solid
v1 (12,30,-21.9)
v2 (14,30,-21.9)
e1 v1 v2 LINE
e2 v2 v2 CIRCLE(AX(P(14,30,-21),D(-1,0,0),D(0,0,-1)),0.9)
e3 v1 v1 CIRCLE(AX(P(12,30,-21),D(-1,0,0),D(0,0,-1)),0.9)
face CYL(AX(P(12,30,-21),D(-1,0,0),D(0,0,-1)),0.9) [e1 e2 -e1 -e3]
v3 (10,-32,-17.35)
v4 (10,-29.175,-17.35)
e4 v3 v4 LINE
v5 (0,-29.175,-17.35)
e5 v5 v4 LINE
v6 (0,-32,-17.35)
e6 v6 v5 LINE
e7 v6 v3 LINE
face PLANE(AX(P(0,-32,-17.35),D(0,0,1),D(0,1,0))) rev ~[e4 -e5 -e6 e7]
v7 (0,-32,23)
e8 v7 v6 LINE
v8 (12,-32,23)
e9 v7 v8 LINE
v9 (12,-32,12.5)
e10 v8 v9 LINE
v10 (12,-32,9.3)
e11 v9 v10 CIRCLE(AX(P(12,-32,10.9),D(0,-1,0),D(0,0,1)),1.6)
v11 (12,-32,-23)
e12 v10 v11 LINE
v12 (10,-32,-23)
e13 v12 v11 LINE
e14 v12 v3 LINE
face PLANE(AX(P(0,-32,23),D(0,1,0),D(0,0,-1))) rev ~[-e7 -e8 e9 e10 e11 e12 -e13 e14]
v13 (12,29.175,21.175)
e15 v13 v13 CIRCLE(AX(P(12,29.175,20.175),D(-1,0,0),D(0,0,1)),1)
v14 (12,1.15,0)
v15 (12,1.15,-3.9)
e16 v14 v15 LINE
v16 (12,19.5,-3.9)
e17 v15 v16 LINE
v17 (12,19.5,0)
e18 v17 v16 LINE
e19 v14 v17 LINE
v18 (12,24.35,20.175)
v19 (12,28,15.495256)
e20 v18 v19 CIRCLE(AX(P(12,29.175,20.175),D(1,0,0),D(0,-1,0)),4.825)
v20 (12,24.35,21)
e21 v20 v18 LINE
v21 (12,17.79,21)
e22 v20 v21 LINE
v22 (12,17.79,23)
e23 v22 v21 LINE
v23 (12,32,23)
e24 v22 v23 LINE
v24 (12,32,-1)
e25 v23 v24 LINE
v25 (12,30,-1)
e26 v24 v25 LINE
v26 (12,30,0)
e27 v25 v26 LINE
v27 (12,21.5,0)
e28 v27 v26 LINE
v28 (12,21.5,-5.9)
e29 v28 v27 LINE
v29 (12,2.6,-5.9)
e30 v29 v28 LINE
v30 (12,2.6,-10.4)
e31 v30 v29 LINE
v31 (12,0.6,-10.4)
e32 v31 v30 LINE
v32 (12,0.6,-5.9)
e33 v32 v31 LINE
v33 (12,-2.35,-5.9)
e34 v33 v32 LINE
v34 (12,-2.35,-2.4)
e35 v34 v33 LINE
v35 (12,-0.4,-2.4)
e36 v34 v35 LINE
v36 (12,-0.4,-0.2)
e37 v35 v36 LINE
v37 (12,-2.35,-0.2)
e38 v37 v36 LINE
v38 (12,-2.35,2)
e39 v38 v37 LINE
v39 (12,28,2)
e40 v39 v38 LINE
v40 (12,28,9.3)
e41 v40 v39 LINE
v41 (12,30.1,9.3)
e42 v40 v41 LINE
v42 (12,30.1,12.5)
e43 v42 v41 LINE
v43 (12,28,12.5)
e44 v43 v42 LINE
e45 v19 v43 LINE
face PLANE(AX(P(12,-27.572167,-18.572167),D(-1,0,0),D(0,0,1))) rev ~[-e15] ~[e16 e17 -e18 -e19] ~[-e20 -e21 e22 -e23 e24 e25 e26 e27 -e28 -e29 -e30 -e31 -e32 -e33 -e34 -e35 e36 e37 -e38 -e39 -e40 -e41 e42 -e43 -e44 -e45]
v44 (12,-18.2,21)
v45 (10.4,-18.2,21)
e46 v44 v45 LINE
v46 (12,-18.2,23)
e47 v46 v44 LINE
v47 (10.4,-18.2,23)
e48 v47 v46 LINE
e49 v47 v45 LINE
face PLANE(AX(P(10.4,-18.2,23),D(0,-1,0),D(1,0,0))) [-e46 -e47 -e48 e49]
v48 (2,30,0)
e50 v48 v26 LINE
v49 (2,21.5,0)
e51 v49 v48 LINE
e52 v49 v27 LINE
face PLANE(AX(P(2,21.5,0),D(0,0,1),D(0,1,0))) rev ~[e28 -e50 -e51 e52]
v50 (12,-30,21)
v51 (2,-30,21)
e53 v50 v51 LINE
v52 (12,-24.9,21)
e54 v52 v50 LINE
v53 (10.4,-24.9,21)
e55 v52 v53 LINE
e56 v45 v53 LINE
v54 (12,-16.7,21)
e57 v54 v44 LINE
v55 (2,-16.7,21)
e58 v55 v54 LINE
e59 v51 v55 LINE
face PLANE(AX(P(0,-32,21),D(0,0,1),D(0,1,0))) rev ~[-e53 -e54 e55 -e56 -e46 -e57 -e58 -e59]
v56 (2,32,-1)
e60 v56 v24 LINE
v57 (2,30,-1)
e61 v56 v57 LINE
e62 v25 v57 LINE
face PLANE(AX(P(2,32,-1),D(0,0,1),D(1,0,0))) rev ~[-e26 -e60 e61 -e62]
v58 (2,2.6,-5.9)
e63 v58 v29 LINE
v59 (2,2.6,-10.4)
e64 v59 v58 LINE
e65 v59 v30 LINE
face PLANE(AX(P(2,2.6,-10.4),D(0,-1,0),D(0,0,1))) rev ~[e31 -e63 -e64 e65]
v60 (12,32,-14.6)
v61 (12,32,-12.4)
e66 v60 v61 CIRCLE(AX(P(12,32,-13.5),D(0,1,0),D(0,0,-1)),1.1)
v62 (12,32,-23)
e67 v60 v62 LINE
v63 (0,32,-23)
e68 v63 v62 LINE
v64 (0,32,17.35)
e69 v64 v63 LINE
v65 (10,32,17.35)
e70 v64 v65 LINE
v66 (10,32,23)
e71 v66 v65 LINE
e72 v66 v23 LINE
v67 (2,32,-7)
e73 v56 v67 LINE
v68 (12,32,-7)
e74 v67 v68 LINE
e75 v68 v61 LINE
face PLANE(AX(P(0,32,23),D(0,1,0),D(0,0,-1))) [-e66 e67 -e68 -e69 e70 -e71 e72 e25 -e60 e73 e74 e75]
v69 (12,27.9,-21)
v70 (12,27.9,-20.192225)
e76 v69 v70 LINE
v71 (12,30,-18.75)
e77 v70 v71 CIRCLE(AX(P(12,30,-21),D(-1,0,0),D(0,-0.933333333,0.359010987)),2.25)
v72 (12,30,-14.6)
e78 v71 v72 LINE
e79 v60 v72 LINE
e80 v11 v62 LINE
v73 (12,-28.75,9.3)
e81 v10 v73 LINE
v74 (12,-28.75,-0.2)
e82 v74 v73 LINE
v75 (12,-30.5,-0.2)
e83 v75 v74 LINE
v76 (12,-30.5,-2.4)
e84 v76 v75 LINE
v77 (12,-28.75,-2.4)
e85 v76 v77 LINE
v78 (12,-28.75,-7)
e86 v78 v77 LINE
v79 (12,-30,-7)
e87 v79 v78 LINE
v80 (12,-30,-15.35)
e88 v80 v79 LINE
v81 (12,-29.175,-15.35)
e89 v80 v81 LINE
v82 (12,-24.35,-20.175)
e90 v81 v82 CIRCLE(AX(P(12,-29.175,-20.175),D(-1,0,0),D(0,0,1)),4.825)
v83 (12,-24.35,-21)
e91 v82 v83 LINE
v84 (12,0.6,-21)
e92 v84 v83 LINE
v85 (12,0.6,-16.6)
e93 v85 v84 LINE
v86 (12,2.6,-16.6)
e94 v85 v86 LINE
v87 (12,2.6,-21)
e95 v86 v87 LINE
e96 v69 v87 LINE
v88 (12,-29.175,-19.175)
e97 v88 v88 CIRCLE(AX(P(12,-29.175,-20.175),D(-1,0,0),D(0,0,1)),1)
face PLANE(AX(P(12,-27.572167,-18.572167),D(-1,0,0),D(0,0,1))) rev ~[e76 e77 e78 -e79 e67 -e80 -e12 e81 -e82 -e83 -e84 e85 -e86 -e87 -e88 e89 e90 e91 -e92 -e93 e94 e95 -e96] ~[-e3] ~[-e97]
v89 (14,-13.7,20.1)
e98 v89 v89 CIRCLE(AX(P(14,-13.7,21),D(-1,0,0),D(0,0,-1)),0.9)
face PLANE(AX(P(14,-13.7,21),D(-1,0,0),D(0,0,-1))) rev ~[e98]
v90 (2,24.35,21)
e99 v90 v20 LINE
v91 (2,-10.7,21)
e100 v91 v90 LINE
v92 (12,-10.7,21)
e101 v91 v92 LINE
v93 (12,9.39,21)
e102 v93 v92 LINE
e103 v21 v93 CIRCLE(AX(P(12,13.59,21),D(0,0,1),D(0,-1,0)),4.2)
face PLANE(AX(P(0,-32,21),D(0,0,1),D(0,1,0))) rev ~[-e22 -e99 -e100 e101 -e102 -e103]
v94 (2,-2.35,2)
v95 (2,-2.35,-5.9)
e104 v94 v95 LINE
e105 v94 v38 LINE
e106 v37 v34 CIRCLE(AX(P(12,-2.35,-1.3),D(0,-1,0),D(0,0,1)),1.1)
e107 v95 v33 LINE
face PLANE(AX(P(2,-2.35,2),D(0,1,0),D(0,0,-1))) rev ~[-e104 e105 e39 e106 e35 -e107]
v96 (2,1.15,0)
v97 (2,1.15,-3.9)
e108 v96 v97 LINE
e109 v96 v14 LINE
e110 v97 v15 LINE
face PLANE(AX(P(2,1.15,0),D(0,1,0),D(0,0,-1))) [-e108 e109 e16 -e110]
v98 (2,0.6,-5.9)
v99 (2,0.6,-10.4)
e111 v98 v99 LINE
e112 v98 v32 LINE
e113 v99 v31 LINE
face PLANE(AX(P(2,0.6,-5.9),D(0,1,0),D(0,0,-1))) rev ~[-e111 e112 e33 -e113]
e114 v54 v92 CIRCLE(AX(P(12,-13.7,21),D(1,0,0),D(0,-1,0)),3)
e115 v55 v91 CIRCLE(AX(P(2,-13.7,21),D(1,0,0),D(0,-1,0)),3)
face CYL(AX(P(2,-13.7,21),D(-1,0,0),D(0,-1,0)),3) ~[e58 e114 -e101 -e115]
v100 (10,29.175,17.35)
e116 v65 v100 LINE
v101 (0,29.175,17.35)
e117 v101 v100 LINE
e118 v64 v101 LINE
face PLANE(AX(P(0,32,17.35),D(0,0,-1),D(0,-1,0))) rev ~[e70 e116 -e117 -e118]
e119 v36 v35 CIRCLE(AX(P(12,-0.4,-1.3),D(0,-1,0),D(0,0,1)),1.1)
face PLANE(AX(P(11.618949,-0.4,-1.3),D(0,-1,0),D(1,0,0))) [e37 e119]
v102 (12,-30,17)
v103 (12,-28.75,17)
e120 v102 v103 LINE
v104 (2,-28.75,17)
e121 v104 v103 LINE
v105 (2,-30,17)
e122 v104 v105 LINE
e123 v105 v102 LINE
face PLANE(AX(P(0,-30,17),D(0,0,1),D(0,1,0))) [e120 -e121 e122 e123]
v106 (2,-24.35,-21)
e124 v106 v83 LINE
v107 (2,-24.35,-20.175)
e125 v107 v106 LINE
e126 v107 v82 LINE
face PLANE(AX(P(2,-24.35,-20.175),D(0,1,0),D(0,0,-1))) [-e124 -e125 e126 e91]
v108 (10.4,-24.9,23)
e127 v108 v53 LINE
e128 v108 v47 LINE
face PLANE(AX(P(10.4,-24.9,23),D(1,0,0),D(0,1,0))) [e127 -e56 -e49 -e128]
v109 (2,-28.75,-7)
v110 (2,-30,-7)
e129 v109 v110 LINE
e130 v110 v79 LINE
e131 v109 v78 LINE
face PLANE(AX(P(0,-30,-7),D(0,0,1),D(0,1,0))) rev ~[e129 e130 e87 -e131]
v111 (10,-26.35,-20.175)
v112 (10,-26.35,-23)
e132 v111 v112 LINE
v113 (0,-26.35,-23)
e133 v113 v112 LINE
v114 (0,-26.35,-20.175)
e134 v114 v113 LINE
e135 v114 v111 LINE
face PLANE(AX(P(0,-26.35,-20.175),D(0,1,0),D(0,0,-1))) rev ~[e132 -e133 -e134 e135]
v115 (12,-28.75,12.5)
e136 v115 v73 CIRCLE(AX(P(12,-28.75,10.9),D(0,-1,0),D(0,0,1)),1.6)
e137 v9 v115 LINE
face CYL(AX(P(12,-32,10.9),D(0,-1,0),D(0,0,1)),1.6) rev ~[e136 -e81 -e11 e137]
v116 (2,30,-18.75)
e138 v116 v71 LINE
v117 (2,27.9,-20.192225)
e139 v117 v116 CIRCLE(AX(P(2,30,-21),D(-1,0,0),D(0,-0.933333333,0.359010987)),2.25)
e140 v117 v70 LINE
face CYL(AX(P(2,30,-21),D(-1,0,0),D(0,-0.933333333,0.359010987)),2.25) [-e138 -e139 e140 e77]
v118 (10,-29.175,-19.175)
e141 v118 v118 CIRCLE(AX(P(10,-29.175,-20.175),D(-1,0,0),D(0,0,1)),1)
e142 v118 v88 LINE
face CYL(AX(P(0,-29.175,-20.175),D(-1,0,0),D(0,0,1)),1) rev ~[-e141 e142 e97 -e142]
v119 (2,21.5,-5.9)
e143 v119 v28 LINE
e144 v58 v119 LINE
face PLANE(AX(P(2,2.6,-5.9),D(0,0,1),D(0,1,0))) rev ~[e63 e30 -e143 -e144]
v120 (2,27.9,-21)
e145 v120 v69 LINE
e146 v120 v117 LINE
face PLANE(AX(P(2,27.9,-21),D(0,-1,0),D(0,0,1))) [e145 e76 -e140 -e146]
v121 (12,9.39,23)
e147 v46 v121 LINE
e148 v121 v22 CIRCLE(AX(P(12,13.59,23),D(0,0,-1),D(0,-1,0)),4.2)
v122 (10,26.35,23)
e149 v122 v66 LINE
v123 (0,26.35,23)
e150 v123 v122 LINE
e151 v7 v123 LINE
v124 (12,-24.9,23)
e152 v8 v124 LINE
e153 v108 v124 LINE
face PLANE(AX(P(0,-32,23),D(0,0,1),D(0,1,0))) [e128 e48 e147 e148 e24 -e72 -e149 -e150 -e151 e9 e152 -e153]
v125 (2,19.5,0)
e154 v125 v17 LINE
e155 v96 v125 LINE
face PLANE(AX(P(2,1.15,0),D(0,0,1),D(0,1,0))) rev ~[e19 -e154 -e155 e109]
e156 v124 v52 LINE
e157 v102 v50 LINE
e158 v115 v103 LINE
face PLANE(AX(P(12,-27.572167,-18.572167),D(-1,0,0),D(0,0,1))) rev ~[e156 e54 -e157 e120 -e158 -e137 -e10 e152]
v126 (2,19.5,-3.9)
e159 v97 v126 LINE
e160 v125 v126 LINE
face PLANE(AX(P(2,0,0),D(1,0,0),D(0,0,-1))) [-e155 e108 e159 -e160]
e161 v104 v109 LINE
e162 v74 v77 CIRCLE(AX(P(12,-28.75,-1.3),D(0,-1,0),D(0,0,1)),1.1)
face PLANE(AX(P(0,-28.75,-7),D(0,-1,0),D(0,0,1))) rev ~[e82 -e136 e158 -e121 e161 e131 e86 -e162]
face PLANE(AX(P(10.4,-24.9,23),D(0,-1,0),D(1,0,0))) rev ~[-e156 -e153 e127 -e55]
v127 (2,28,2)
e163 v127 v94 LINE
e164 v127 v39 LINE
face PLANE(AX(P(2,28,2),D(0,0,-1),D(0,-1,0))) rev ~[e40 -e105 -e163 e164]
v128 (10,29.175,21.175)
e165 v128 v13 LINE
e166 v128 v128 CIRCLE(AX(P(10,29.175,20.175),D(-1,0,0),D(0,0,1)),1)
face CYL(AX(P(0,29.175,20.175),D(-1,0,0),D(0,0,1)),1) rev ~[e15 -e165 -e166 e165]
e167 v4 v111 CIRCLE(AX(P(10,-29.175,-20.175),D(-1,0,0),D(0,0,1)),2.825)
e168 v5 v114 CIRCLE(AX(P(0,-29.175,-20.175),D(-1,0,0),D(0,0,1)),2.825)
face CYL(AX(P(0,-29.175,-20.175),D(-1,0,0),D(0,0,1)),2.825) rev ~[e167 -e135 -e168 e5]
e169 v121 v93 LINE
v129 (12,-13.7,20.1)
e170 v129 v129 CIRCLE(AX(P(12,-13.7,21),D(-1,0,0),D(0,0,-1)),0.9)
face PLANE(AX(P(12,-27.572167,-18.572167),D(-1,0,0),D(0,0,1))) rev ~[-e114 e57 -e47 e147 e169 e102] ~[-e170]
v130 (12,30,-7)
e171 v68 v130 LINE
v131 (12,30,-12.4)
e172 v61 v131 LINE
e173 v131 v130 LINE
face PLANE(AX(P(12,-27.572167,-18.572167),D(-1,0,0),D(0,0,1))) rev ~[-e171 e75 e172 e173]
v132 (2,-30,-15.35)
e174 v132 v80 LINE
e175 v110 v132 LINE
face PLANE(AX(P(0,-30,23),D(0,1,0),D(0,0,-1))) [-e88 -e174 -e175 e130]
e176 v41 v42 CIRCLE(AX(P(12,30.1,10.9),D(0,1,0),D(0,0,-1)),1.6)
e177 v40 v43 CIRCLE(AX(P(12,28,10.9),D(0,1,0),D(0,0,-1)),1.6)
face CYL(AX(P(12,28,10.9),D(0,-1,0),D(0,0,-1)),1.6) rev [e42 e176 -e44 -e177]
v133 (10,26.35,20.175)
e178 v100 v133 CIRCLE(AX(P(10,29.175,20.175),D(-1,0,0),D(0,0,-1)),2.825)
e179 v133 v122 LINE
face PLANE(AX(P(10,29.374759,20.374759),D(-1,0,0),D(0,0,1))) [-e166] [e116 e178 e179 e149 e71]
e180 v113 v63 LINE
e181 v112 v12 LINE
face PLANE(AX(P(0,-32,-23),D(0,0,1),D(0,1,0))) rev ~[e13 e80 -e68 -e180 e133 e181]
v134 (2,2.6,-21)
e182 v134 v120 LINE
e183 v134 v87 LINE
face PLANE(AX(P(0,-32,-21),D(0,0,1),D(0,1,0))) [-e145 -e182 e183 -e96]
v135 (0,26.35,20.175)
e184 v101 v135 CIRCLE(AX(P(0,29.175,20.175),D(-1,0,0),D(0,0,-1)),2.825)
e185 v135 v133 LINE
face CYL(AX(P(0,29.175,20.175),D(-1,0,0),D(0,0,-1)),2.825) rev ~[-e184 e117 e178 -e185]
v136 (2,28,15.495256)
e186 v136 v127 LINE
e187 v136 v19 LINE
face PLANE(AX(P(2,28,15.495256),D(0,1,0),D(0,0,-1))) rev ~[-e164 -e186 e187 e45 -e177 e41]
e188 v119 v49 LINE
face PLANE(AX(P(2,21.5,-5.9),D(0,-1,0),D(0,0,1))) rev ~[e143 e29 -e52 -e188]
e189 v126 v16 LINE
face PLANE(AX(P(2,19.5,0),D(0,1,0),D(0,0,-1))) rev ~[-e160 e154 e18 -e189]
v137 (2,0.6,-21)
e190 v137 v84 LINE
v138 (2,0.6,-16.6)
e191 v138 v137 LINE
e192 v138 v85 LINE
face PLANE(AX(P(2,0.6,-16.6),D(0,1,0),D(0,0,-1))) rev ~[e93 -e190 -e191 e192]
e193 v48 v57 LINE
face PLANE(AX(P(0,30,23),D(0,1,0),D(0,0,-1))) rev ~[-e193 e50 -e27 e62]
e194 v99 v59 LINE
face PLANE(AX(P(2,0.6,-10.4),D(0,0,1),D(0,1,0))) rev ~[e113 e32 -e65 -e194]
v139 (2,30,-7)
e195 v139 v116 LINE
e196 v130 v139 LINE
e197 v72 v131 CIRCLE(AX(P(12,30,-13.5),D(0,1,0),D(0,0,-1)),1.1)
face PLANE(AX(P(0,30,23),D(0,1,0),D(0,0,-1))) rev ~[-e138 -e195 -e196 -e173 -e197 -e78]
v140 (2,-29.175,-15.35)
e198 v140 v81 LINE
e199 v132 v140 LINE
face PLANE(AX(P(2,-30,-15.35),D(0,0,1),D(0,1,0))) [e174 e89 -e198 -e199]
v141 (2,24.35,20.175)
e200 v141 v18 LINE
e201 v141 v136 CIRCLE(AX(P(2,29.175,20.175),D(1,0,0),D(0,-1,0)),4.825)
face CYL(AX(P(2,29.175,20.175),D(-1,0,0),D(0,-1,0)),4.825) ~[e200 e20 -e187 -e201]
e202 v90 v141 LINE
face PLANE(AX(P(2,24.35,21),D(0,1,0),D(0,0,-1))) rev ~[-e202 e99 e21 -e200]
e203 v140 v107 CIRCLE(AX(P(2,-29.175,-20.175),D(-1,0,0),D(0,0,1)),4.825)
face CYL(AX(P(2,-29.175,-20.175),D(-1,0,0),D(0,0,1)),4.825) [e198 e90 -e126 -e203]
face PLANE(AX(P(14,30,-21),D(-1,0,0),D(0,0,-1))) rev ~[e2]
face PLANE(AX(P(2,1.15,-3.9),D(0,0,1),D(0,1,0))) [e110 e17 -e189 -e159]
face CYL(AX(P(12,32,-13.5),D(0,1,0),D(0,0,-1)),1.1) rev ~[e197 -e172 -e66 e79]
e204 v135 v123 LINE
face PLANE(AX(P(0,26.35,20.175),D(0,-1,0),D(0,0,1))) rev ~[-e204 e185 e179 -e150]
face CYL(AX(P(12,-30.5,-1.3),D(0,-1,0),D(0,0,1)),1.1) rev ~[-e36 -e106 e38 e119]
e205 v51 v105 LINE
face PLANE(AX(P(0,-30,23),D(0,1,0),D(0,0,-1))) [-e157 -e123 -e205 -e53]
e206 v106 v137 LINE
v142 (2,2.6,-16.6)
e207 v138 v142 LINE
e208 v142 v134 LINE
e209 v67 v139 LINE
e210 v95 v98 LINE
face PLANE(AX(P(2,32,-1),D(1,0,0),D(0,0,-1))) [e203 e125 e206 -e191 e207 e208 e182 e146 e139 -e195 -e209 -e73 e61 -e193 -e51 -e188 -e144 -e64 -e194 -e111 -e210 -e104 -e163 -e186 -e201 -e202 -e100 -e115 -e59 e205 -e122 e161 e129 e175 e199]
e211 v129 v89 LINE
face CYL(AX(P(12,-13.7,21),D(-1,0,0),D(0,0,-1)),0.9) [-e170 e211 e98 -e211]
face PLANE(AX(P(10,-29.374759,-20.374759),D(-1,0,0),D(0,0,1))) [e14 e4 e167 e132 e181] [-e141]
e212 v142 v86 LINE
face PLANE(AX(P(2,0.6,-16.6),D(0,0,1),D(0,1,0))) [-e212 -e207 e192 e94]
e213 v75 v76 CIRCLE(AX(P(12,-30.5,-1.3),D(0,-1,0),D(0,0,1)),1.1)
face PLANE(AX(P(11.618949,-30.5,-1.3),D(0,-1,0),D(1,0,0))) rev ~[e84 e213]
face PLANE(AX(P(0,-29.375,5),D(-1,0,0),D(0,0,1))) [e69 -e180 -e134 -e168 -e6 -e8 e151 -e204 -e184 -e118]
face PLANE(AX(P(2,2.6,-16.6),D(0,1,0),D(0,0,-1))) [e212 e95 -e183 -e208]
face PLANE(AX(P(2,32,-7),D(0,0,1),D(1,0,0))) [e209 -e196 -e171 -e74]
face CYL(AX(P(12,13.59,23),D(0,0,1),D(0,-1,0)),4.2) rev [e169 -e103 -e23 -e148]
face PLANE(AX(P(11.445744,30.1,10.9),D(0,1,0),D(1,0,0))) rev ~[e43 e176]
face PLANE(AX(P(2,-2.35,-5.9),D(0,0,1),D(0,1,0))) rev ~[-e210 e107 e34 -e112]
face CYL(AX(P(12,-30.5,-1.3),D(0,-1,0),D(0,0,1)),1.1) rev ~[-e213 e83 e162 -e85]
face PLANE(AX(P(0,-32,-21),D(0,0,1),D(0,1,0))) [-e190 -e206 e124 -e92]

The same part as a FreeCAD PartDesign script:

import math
import FreeCAD as App
import Part
import Sketcher


def faces_at(feature, points):
    """Names of the faces that lie closest to the given points."""
    faces = feature.Shape.Faces
    near = lambda p: min(range(len(faces)), key=lambda i: faces[i].distToShape(Part.Vertex(*p))[0])
    return sorted({f"Face{near(p) + 1}" for p in points})

doc = App.newDocument("Part")
params = doc.addObject("Spreadsheet::Sheet", "Params")
for row, (alias, value) in enumerate([
    ("sketch1_width", "64 mm"),
    ("sketch1_height", "46 mm"),
    ("pad1_length", "12 mm"),
    ("thickness_wall", "2 mm"),
    ("sketch2_radius", "3 mm"),
    ("sketch2_width", "2 mm"),
    ("sketch2_height", "21 mm"),
    ("sketch2_radius2", "2.25 mm"),
    ("sketch2_width2", "18.9 mm"),
    ("pad2_length", "10 mm"),
    ("sketch3_diameter", "2 mm"),
    ("sketch3_width", "5.65 mm"),
    ("pocket1_length", "10 mm"),
    ("sketch4_diameter", "2 mm"),
    ("sketch5_diameter", "2 mm"),
    ("sketch6_diameter", "1.8 mm"),
    ("pad3_length", "2 mm"),
    ("sketch7_height", "24 mm"),
    ("sketch7_width", "1.25 mm"),
    ("pad4_length", "12 mm"),
    ("sketch8_radius", "1.6 mm"),
    ("sketch9_radius", "1.1 mm"),
    ("sketch10_radius", "1.6 mm"),
    ("pocket6_length", "2.1 mm"),
    ("sketch11_radius", "1.1 mm"),
    ("pocket7_length", "30.1 mm"),
    ("sketch12_radius", "4.2 mm"),
    ("sketch13_width", "10 mm"),
    ("sketch13_height", "6 mm"),
    ("sketch14_width", "1.6 mm"),
    ("sketch14_height", "6.7 mm"),
], start=1):
    params.set(f"A{row}", alias)
    params.set(f"B{row}", "=" + value)
    params.setAlias(f"B{row}", alias)

body = doc.addObject("PartDesign::Body", "Body")

# Sketch on YZ plane
sketch1 = body.newObject("Sketcher::SketchObject", "Sketch")
sketch1.AttachmentSupport = (doc.getObject("YZ_Plane"), [""])
sketch1.MapMode = "FlatFace"
sketch1.addGeometry([
    Part.LineSegment(App.Vector(32, 23, 0), App.Vector(-32, 23, 0)),
    Part.LineSegment(App.Vector(-32, 23, 0), App.Vector(-32, -23, 0)),
    Part.LineSegment(App.Vector(-32, -23, 0), App.Vector(32, -23, 0)),
    Part.LineSegment(App.Vector(32, -23, 0), App.Vector(32, 23, 0)),
], False)
sketch1.addConstraint([
    Sketcher.Constraint("Coincident", 0, 2, 1, 1),
    Sketcher.Constraint("Coincident", 1, 2, 2, 1),
    Sketcher.Constraint("Coincident", 2, 2, 3, 1),
    Sketcher.Constraint("Coincident", 3, 2, 0, 1),
    Sketcher.Constraint("Horizontal", 0),
    Sketcher.Constraint("Vertical", 1),
    Sketcher.Constraint("Horizontal", 2),
    Sketcher.Constraint("Vertical", 3),
    Sketcher.Constraint("Symmetric", 0, 2, 2, 2, -1, 1),
    Sketcher.Constraint("DistanceX", 0, 2, 0, 1, 64.0),
    Sketcher.Constraint("DistanceY", 1, 2, 1, 1, 46.0),
])
sketch1.setExpression("Constraints[9]", "Params.sketch1_width")
sketch1.setExpression("Constraints[10]", "Params.sketch1_height")
pad1 = body.newObject("PartDesign::Pad", "Pad")
pad1.Profile = sketch1
pad1.setExpression("Length", "Params.pad1_length")
doc.recompute()

thickness = body.newObject("PartDesign::Thickness", "Thickness")
thickness.Base = (pad1, faces_at(pad1, [(12, 0, 0)]))
thickness.setExpression("Value", "Params.thickness_wall")
thickness.Reversed = True
thickness.Join = "Intersection"

# Sketch on YZ plane
sketch2 = body.newObject("Sketcher::SketchObject", "Sketch001")
sketch2.AttachmentSupport = (doc.getObject("YZ_Plane"), [""])
sketch2.MapMode = "FlatFace"
sketch2.AttachmentOffset = App.Placement(App.Vector(0, 0, 2), App.Rotation())
sketch2.addGeometry([
    Part.LineSegment(App.Vector(-24.4, -21, 0), App.Vector(-24.4, -20.2, 0)),  # 0
    Part.ArcOfCircle(Part.Circle(App.Vector(-29.2, -20.2, 0), App.Vector(0, 0, 1), 4.8), math.radians(0), math.radians(90)),  # 1
    Part.LineSegment(App.Vector(-29.2, -15.3, 0), App.Vector(-30, -15.3, 0)),  # 2
    Part.LineSegment(App.Vector(-30, -15.3, 0), App.Vector(-30, -21, 0)),  # 3
    Part.LineSegment(App.Vector(-30, -21, 0), App.Vector(-24.4, -21, 0)),  # 4
    Part.LineSegment(App.Vector(2.6, -16.6, 0), App.Vector(0.6, -16.6, 0)),  # 5
    Part.LineSegment(App.Vector(0.6, -16.6, 0), App.Vector(0.6, -21, 0)),  # 6
    Part.LineSegment(App.Vector(0.6, -21, 0), App.Vector(2.6, -21, 0)),  # 7
    Part.LineSegment(App.Vector(2.6, -21, 0), App.Vector(2.6, -16.6, 0)),  # 8
    Part.LineSegment(App.Vector(30, 21, 0), App.Vector(24.4, 21, 0)),  # 9
    Part.LineSegment(App.Vector(24.4, 21, 0), App.Vector(24.4, 20.2, 0)),  # 10
    Part.ArcOfCircle(Part.Circle(App.Vector(29.2, 20.2, 0), App.Vector(0, 0, 1), 4.8), math.radians(180), math.radians(256)),  # 11
    Part.LineSegment(App.Vector(28, 15.5, 0), App.Vector(28, 2, 0)),  # 12
    Part.LineSegment(App.Vector(28, 2, 0), App.Vector(-2.4, 2, 0)),  # 13
    Part.LineSegment(App.Vector(-2.4, 2, 0), App.Vector(-2.4, -5.9, 0)),  # 14
    Part.LineSegment(App.Vector(-2.4, -5.9, 0), App.Vector(0.6, -5.9, 0)),  # 15
    Part.LineSegment(App.Vector(0.6, -5.9, 0), App.Vector(0.6, -10.4, 0)),  # 16
    Part.LineSegment(App.Vector(0.6, -10.4, 0), App.Vector(2.6, -10.4, 0)),  # 17
    Part.LineSegment(App.Vector(2.6, -10.4, 0), App.Vector(2.6, -5.9, 0)),  # 18
    Part.LineSegment(App.Vector(2.6, -5.9, 0), App.Vector(21.5, -5.9, 0)),  # 19
    Part.LineSegment(App.Vector(21.5, -5.9, 0), App.Vector(21.5, 0, 0)),  # 20
    Part.LineSegment(App.Vector(21.5, 0, 0), App.Vector(30, 0, 0)),  # 21
    Part.LineSegment(App.Vector(30, 0, 0), App.Vector(30, 21, 0)),  # 22
    Part.LineSegment(App.Vector(1.1, -3.9, 0), App.Vector(1.1, 0, 0)),  # 23
    Part.LineSegment(App.Vector(1.1, 0, 0), App.Vector(19.5, 0, 0)),  # 24
    Part.LineSegment(App.Vector(19.5, 0, 0), App.Vector(19.5, -3.9, 0)),  # 25
    Part.LineSegment(App.Vector(19.5, -3.9, 0), App.Vector(1.1, -3.9, 0)),  # 26
    Part.LineSegment(App.Vector(-10.7, 21, 0), App.Vector(-16.7, 21, 0)),  # 27
    Part.ArcOfCircle(Part.Circle(App.Vector(-13.7, 21, 0), App.Vector(0, 0, 1), 3), math.radians(180), math.radians(360)),  # 28
    Part.LineSegment(App.Vector(30, -21, 0), App.Vector(30, -18.8, 0)),  # 29
    Part.ArcOfCircle(Part.Circle(App.Vector(30, -21, 0), App.Vector(0, 0, 1), 2.3), math.radians(90), math.radians(159)),  # 30
    Part.LineSegment(App.Vector(27.9, -20.2, 0), App.Vector(27.9, -21, 0)),  # 31
    Part.LineSegment(App.Vector(27.9, -21, 0), App.Vector(30, -21, 0)),  # 32
], False)
sketch2.addConstraint([
    Sketcher.Constraint("Tangent", 0, 2, 1, 1),
    Sketcher.Constraint("Tangent", 1, 2, 2, 1),
    Sketcher.Constraint("Coincident", 2, 2, 3, 1),
    Sketcher.Constraint("Coincident", 3, 2, 4, 1),
    Sketcher.Constraint("Coincident", 4, 2, 0, 1),
    Sketcher.Constraint("Coincident", 5, 2, 6, 1),
    Sketcher.Constraint("Coincident", 6, 2, 7, 1),
    Sketcher.Constraint("Coincident", 7, 2, 8, 1),
    Sketcher.Constraint("Coincident", 8, 2, 5, 1),
    Sketcher.Constraint("Coincident", 9, 2, 10, 1),
    Sketcher.Constraint("Tangent", 10, 2, 11, 1),
    Sketcher.Constraint("Coincident", 11, 2, 12, 1),
    Sketcher.Constraint("Coincident", 12, 2, 13, 1),
    Sketcher.Constraint("Coincident", 13, 2, 14, 1),
    Sketcher.Constraint("Coincident", 14, 2, 15, 1),
    Sketcher.Constraint("Coincident", 15, 2, 16, 1),
    Sketcher.Constraint("Coincident", 16, 2, 17, 1),
    Sketcher.Constraint("Coincident", 17, 2, 18, 1),
    Sketcher.Constraint("Coincident", 18, 2, 19, 1),
    Sketcher.Constraint("Coincident", 19, 2, 20, 1),
    Sketcher.Constraint("Coincident", 20, 2, 21, 1),
    Sketcher.Constraint("Coincident", 21, 2, 22, 1),
    Sketcher.Constraint("Coincident", 22, 2, 9, 1),
    Sketcher.Constraint("Coincident", 23, 2, 24, 1),
    Sketcher.Constraint("Coincident", 24, 2, 25, 1),
    Sketcher.Constraint("Coincident", 25, 2, 26, 1),
    Sketcher.Constraint("Coincident", 26, 2, 23, 1),
    Sketcher.Constraint("Coincident", 27, 1, 28, 2),
    Sketcher.Constraint("Coincident", 28, 1, 27, 2),
    Sketcher.Constraint("Coincident", 29, 2, 30, 1),
    Sketcher.Constraint("Coincident", 30, 2, 31, 1),
    Sketcher.Constraint("Coincident", 31, 2, 32, 1),
    Sketcher.Constraint("Coincident", 32, 2, 29, 1),
    Sketcher.Constraint("Vertical", 0),
    Sketcher.Constraint("Horizontal", 2),
    Sketcher.Constraint("Vertical", 3),
    Sketcher.Constraint("Horizontal", 4),
    Sketcher.Constraint("Horizontal", 5),
    Sketcher.Constraint("Vertical", 6),
    Sketcher.Constraint("Horizontal", 7),
    Sketcher.Constraint("Vertical", 8),
    Sketcher.Constraint("Horizontal", 9),
    Sketcher.Constraint("Vertical", 10),
    Sketcher.Constraint("Vertical", 12),
    Sketcher.Constraint("Horizontal", 13),
    Sketcher.Constraint("Vertical", 14),
    Sketcher.Constraint("Horizontal", 15),
    Sketcher.Constraint("Vertical", 16),
    Sketcher.Constraint("Horizontal", 17),
    Sketcher.Constraint("Vertical", 18),
    Sketcher.Constraint("Horizontal", 19),
    Sketcher.Constraint("Vertical", 20),
    Sketcher.Constraint("Horizontal", 21),
    Sketcher.Constraint("Vertical", 22),
    Sketcher.Constraint("Vertical", 23),
    Sketcher.Constraint("Horizontal", 24),
    Sketcher.Constraint("Vertical", 25),
    Sketcher.Constraint("Horizontal", 26),
    Sketcher.Constraint("Horizontal", 27),
    Sketcher.Constraint("Vertical", 29),
    Sketcher.Constraint("Vertical", 31),
    Sketcher.Constraint("Horizontal", 32),
    Sketcher.Constraint("Coincident", 32, 2, 30, 3),
    Sketcher.Constraint("Equal", 1, 11),
    Sketcher.Constraint("Symmetric", 1, 3, 11, 3, -1, 1),
    Sketcher.Constraint("Symmetric", 3, 2, 22, 2, -1, 1),
    Sketcher.Constraint("Symmetric", 3, 2, 32, 2, -2),
    Sketcher.Constraint("PointOnObject", 20, 2, -1),
    Sketcher.Constraint("PointOnObject", 23, 2, -1),
    Sketcher.Constraint("Horizontal", 4, 2, 6, 2),
    Sketcher.Constraint("Horizontal", 28, 3, 9, 2),
    Sketcher.Constraint("Horizontal", 15, 2, 18, 2),
    Sketcher.Constraint("Horizontal", 22, 2, 27, 1),
    Sketcher.Constraint("Vertical", 6, 2, 15, 2),
    Sketcher.Constraint("Vertical", 8, 2, 17, 2),
    Sketcher.Constraint("Equal", 2, 0),
    Sketcher.Constraint("Radius", 28, 3.0),
    Sketcher.Constraint("DistanceX", 5, 2, 5, 1, 2.0),
    Sketcher.Constraint("DistanceY", 22, 1, 22, 2, 21.0),
    Sketcher.Constraint("Radius", 30, 2.25),
    Sketcher.Constraint("DistanceX", 19, 1, 19, 2, 18.9),
    Sketcher.Constraint("DistanceX", 21, 1, 21, 2, 8.5),
    Sketcher.Constraint("DistanceX", 32, 1, 32, 2, 2.1),
    Sketcher.Constraint("DistanceY", 6, 2, 6, 1, 4.4),
    Sketcher.Constraint("DistanceY", 14, 2, 14, 1, 7.9),
    Sketcher.Constraint("DistanceY", 16, 2, 16, 1, 4.5),
    Sketcher.Constraint("DistanceY", 20, 1, 20, 2, 5.9),
    Sketcher.Constraint("DistanceY", 23, 1, 23, 2, 3.9),
    Sketcher.Constraint("DistanceX", -1, 1, 30, 3, 30.0),
    Sketcher.Constraint("DistanceX", -1, 1, 11, 2, 28.0),
    Sketcher.Constraint("Radius", 1, 4.825),
    Sketcher.Constraint("DistanceX", 24, 2, 20, 2, 2.0),
    Sketcher.Constraint("DistanceX", 4, 1, 4, 2, 5.65),
    Sketcher.Constraint("DistanceX", 13, 2, 13, 1, 30.35),
    Sketcher.Constraint("DistanceX", 24, 1, 24, 2, 18.35),
    Sketcher.Constraint("DistanceX", 28, 3, -1, 1, 13.7),
])
sketch2.setExpression("Constraints[76]", "Params.sketch2_radius")
sketch2.setExpression("Constraints[77]", "Params.sketch2_width")
sketch2.setExpression("Constraints[78]", "Params.sketch2_height")
sketch2.setExpression("Constraints[79]", "Params.sketch2_radius2")
sketch2.setExpression("Constraints[80]", "Params.sketch2_width2")
pad2 = body.newObject("PartDesign::Pad", "Pad001")
pad2.Profile = sketch2
pad2.setExpression("Length", "Params.pad2_length")

# Sketch on YZ plane
sketch3 = body.newObject("Sketcher::SketchObject", "Sketch002")
sketch3.AttachmentSupport = (doc.getObject("YZ_Plane"), [""])
sketch3.MapMode = "FlatFace"
sketch3.addGeometry([
    Part.LineSegment(App.Vector(-26.4, -20.2, 0), App.Vector(-26.4, -23, 0)),  # 0
    Part.LineSegment(App.Vector(-26.4, -23, 0), App.Vector(-32, -23, 0)),  # 1
    Part.LineSegment(App.Vector(-32, -23, 0), App.Vector(-32, -17.4, 0)),  # 2
    Part.LineSegment(App.Vector(-32, -17.4, 0), App.Vector(-29.2, -17.4, 0)),  # 3
    Part.ArcOfCircle(Part.Circle(App.Vector(-29.2, -20.2, 0), App.Vector(0, 0, 1), 2.8), math.radians(0), math.radians(90)),  # 4
    Part.Circle(App.Vector(-29.2, -20.2, 0), App.Vector(0, 0, 1), 1),  # 5
    Part.LineSegment(App.Vector(26.4, 20.2, 0), App.Vector(26.4, 23, 0)),  # 6
    Part.LineSegment(App.Vector(26.4, 23, 0), App.Vector(32, 23, 0)),  # 7
    Part.LineSegment(App.Vector(32, 23, 0), App.Vector(32, 17.4, 0)),  # 8
    Part.LineSegment(App.Vector(32, 17.4, 0), App.Vector(29.2, 17.4, 0)),  # 9
    Part.ArcOfCircle(Part.Circle(App.Vector(29.2, 20.2, 0), App.Vector(0, 0, 1), 2.8), math.radians(180), math.radians(270)),  # 10
    Part.Circle(App.Vector(29.2, 20.2, 0), App.Vector(0, 0, 1), 1),  # 11
], False)
sketch3.addConstraint([
    Sketcher.Constraint("Coincident", 0, 2, 1, 1),
    Sketcher.Constraint("Coincident", 1, 2, 2, 1),
    Sketcher.Constraint("Coincident", 2, 2, 3, 1),
    Sketcher.Constraint("Tangent", 3, 2, 4, 2),
    Sketcher.Constraint("Tangent", 4, 1, 0, 1),
    Sketcher.Constraint("Coincident", 6, 2, 7, 1),
    Sketcher.Constraint("Coincident", 7, 2, 8, 1),
    Sketcher.Constraint("Coincident", 8, 2, 9, 1),
    Sketcher.Constraint("Tangent", 9, 2, 10, 2),
    Sketcher.Constraint("Tangent", 10, 1, 6, 1),
    Sketcher.Constraint("Vertical", 0),
    Sketcher.Constraint("Horizontal", 1),
    Sketcher.Constraint("Vertical", 2),
    Sketcher.Constraint("Horizontal", 3),
    Sketcher.Constraint("Vertical", 6),
    Sketcher.Constraint("Horizontal", 7),
    Sketcher.Constraint("Vertical", 8),
    Sketcher.Constraint("Horizontal", 9),
    Sketcher.Constraint("Coincident", 5, 3, 4, 3),
    Sketcher.Constraint("Coincident", 11, 3, 10, 3),
    Sketcher.Constraint("Equal", 4, 10),
    Sketcher.Constraint("Equal", 5, 11),
    Sketcher.Constraint("Symmetric", 4, 3, 10, 3, -1, 1),
    Sketcher.Constraint("Symmetric", 1, 2, 7, 2, -1, 1),
    Sketcher.Constraint("Equal", 9, 0),
    Sketcher.Constraint("Diameter", 5, 2.0),
    Sketcher.Constraint("DistanceY", 0, 2, -1, 1, 23.0),
    Sketcher.Constraint("DistanceX", 1, 2, -1, 1, 32.0),
    Sketcher.Constraint("Radius", 4, 2.825),
    Sketcher.Constraint("DistanceX", 1, 2, 1, 1, 5.65),
])
sketch3.setExpression("Constraints[25]", "Params.sketch3_diameter")
sketch3.setExpression("Constraints[29]", "Params.sketch3_width")
pocket1 = body.newObject("PartDesign::Pocket", "Pocket")
pocket1.Profile = sketch3
pocket1.setExpression("Length", "Params.pocket1_length")
pocket1.Reversed = True

# Sketch on YZ plane
sketch4 = body.newObject("Sketcher::SketchObject", "Sketch003")
sketch4.AttachmentSupport = (doc.getObject("YZ_Plane"), [""])
sketch4.MapMode = "FlatFace"
sketch4.addGeometry(Part.Circle(App.Vector(-29.2, -20.2, 0), App.Vector(0, 0, 1), 1), False)
sketch4.addConstraint([
    Sketcher.Constraint("Diameter", 0, 2.0),
    Sketcher.Constraint("DistanceX", 0, 3, -1, 1, 29.175),
    Sketcher.Constraint("DistanceY", 0, 3, -1, 1, 20.175),
])
sketch4.setExpression("Constraints[0]", "Params.sketch4_diameter")
pocket2 = body.newObject("PartDesign::Pocket", "Pocket001")
pocket2.Profile = sketch4
pocket2.Type = "UpToFirst"
pocket2.Reversed = True

# Sketch on YZ plane
sketch5 = body.newObject("Sketcher::SketchObject", "Sketch004")
sketch5.AttachmentSupport = (doc.getObject("YZ_Plane"), [""])
sketch5.MapMode = "FlatFace"
sketch5.addGeometry(Part.Circle(App.Vector(29.2, 20.2, 0), App.Vector(0, 0, 1), 1), False)
sketch5.addConstraint([
    Sketcher.Constraint("Diameter", 0, 2.0),
    Sketcher.Constraint("DistanceX", -1, 1, 0, 3, 29.175),
    Sketcher.Constraint("DistanceY", -1, 1, 0, 3, 20.175),
])
sketch5.setExpression("Constraints[0]", "Params.sketch5_diameter")
pocket3 = body.newObject("PartDesign::Pocket", "Pocket002")
pocket3.Profile = sketch5
pocket3.Type = "UpToFirst"
pocket3.Reversed = True

# Sketch on YZ plane
sketch6 = body.newObject("Sketcher::SketchObject", "Sketch005")
sketch6.AttachmentSupport = (doc.getObject("YZ_Plane"), [""])
sketch6.MapMode = "FlatFace"
sketch6.AttachmentOffset = App.Placement(App.Vector(0, 0, 12), App.Rotation())
sketch6.addGeometry([
    Part.Circle(App.Vector(30, -21, 0), App.Vector(0, 0, 1), 0.9),
    Part.Circle(App.Vector(-13.7, 21, 0), App.Vector(0, 0, 1), 0.9),
], False)
sketch6.addConstraint([
    Sketcher.Constraint("Equal", 0, 1),
    Sketcher.Constraint("Diameter", 0, 1.8),
    Sketcher.Constraint("DistanceX", -1, 1, 0, 3, 30.0),
    Sketcher.Constraint("DistanceY", 0, 3, -1, 1, 21.0),
    Sketcher.Constraint("DistanceY", -1, 1, 1, 3, 21.0),
    Sketcher.Constraint("DistanceX", 1, 3, -1, 1, 13.7),
])
sketch6.setExpression("Constraints[1]", "Params.sketch6_diameter")
pad3 = body.newObject("PartDesign::Pad", "Pad002")
pad3.Profile = sketch6
pad3.setExpression("Length", "Params.pad3_length")

# Sketch on YZ plane
sketch7 = body.newObject("Sketcher::SketchObject", "Sketch006")
sketch7.AttachmentSupport = (doc.getObject("YZ_Plane"), [""])
sketch7.MapMode = "FlatFace"
sketch7.addGeometry([
    Part.LineSegment(App.Vector(-28.8, -7, 0), App.Vector(-30, -7, 0)),
    Part.LineSegment(App.Vector(-30, -7, 0), App.Vector(-30, 17, 0)),
    Part.LineSegment(App.Vector(-30, 17, 0), App.Vector(-28.8, 17, 0)),
    Part.LineSegment(App.Vector(-28.8, 17, 0), App.Vector(-28.8, -7, 0)),
], False)
sketch7.addConstraint([
    Sketcher.Constraint("Coincident", 0, 2, 1, 1),
    Sketcher.Constraint("Coincident", 1, 2, 2, 1),
    Sketcher.Constraint("Coincident", 2, 2, 3, 1),
    Sketcher.Constraint("Coincident", 3, 2, 0, 1),
    Sketcher.Constraint("Horizontal", 0),
    Sketcher.Constraint("Vertical", 1),
    Sketcher.Constraint("Horizontal", 2),
    Sketcher.Constraint("Vertical", 3),
    Sketcher.Constraint("DistanceY", 1, 1, 1, 2, 24.0),
    Sketcher.Constraint("DistanceX", 0, 2, -1, 1, 30.0),
    Sketcher.Constraint("DistanceY", 0, 2, -1, 1, 7.0),
    Sketcher.Constraint("DistanceX", 0, 2, 0, 1, 1.25),
])
sketch7.setExpression("Constraints[8]", "Params.sketch7_height")
sketch7.setExpression("Constraints[11]", "Params.sketch7_width")
pad4 = body.newObject("PartDesign::Pad", "Pad003")
pad4.Profile = sketch7
pad4.setExpression("Length", "Params.pad4_length")

# Sketch on XZ plane
sketch8 = body.newObject("Sketcher::SketchObject", "Sketch007")
sketch8.AttachmentSupport = (doc.getObject("XZ_Plane"), [""])
sketch8.MapMode = "FlatFace"
sketch8.AttachmentOffset = App.Placement(App.Vector(0, 0, 32), App.Rotation())
sketch8.addGeometry([
    Part.LineSegment(App.Vector(12, 9.3, 0), App.Vector(12, 12.5, 0)),
    Part.ArcOfCircle(Part.Circle(App.Vector(12, 10.9, 0), App.Vector(0, 0, 1), 1.6), math.radians(90), math.radians(270)),
], False)
sketch8.addConstraint([
    Sketcher.Constraint("Coincident", 0, 1, 1, 2),
    Sketcher.Constraint("Coincident", 1, 1, 0, 2),
    Sketcher.Constraint("Vertical", 0),
    Sketcher.Constraint("Vertical", 1, 3, 0, 1),
    Sketcher.Constraint("Radius", 1, 1.6),
    Sketcher.Constraint("DistanceX", -1, 1, 1, 3, 12.0),
    Sketcher.Constraint("DistanceY", -1, 1, 1, 3, 10.9),
])
sketch8.setExpression("Constraints[4]", "Params.sketch8_radius")
pocket4 = body.newObject("PartDesign::Pocket", "Pocket003")
pocket4.Profile = sketch8
pocket4.Type = "UpToFirst"

# Sketch on XZ plane
sketch9 = body.newObject("Sketcher::SketchObject", "Sketch008")
sketch9.AttachmentSupport = (doc.getObject("XZ_Plane"), [""])
sketch9.MapMode = "FlatFace"
sketch9.AttachmentOffset = App.Placement(App.Vector(0, 0, -32), App.Rotation())
sketch9.addGeometry([
    Part.LineSegment(App.Vector(12, -12.4, 0), App.Vector(12, -14.6, 0)),
    Part.ArcOfCircle(Part.Circle(App.Vector(12, -13.5, 0), App.Vector(0, 0, 1), 1.1), math.radians(90), math.radians(270)),
], False)
sketch9.addConstraint([
    Sketcher.Constraint("Coincident", 0, 1, 1, 1),
    Sketcher.Constraint("Coincident", 1, 2, 0, 2),
    Sketcher.Constraint("Vertical", 0),
    Sketcher.Constraint("Vertical", 1, 3, 0, 1),
    Sketcher.Constraint("Radius", 1, 1.1),
    Sketcher.Constraint("DistanceX", -1, 1, 1, 3, 12.0),
    Sketcher.Constraint("DistanceY", 1, 3, -1, 1, 13.5),
])
sketch9.setExpression("Constraints[4]", "Params.sketch9_radius")
pocket5 = body.newObject("PartDesign::Pocket", "Pocket004")
pocket5.Profile = sketch9
pocket5.Type = "UpToFirst"
pocket5.Reversed = True

# Sketch on XZ plane
sketch10 = body.newObject("Sketcher::SketchObject", "Sketch009")
sketch10.AttachmentSupport = (doc.getObject("XZ_Plane"), [""])
sketch10.MapMode = "FlatFace"
sketch10.AttachmentOffset = App.Placement(App.Vector(0, 0, -28), App.Rotation())
sketch10.addGeometry([
    Part.LineSegment(App.Vector(12, 12.5, 0), App.Vector(12, 9.3, 0)),
    Part.ArcOfCircle(Part.Circle(App.Vector(12, 10.9, 0), App.Vector(0, 0, 1), 1.6), math.radians(90), math.radians(270)),
], False)
sketch10.addConstraint([
    Sketcher.Constraint("Coincident", 0, 1, 1, 1),
    Sketcher.Constraint("Coincident", 1, 2, 0, 2),
    Sketcher.Constraint("Vertical", 0),
    Sketcher.Constraint("Vertical", 1, 3, 0, 1),
    Sketcher.Constraint("Radius", 1, 1.6),
    Sketcher.Constraint("DistanceX", -1, 1, 1, 3, 12.0),
    Sketcher.Constraint("DistanceY", -1, 1, 1, 3, 10.9),
])
sketch10.setExpression("Constraints[4]", "Params.sketch10_radius")
pocket6 = body.newObject("PartDesign::Pocket", "Pocket005")
pocket6.Profile = sketch10
pocket6.setExpression("Length", "Params.pocket6_length")

# Sketch on XZ plane
sketch11 = body.newObject("Sketcher::SketchObject", "Sketch010")
sketch11.AttachmentSupport = (doc.getObject("XZ_Plane"), [""])
sketch11.MapMode = "FlatFace"
sketch11.AttachmentOffset = App.Placement(App.Vector(0, 0, 30.5), App.Rotation())
sketch11.addGeometry([
    Part.LineSegment(App.Vector(12, -2.4, 0), App.Vector(12, -0.2, 0)),
    Part.ArcOfCircle(Part.Circle(App.Vector(12, -1.3, 0), App.Vector(0, 0, 1), 1.1), math.radians(90), math.radians(270)),
], False)
sketch11.addConstraint([
    Sketcher.Constraint("Coincident", 0, 1, 1, 2),
    Sketcher.Constraint("Coincident", 1, 1, 0, 2),
    Sketcher.Constraint("Vertical", 0),
    Sketcher.Constraint("Vertical", 1, 3, 0, 1),
    Sketcher.Constraint("Radius", 1, 1.1),
    Sketcher.Constraint("DistanceX", -1, 1, 1, 3, 12.0),
    Sketcher.Constraint("DistanceY", 1, 3, -1, 1, 1.3),
])
sketch11.setExpression("Constraints[4]", "Params.sketch11_radius")
pocket7 = body.newObject("PartDesign::Pocket", "Pocket006")
pocket7.Profile = sketch11
pocket7.setExpression("Length", "Params.pocket7_length")

# Sketch on XY plane
sketch12 = body.newObject("Sketcher::SketchObject", "Sketch011")
sketch12.AttachmentSupport = (doc.getObject("XY_Plane"), [""])
sketch12.MapMode = "FlatFace"
sketch12.AttachmentOffset = App.Placement(App.Vector(0, 0, 23), App.Rotation())
sketch12.addGeometry([
    Part.LineSegment(App.Vector(12, 9.4, 0), App.Vector(12, 17.8, 0)),
    Part.ArcOfCircle(Part.Circle(App.Vector(12, 13.6, 0), App.Vector(0, 0, 1), 4.2), math.radians(90), math.radians(270)),
], False)
sketch12.addConstraint([
    Sketcher.Constraint("Coincident", 0, 1, 1, 2),
    Sketcher.Constraint("Coincident", 1, 1, 0, 2),
    Sketcher.Constraint("Vertical", 0),
    Sketcher.Constraint("Vertical", 1, 3, 0, 1),
    Sketcher.Constraint("Radius", 1, 4.2),
    Sketcher.Constraint("DistanceX", -1, 1, 1, 3, 12.0),
    Sketcher.Constraint("DistanceY", -1, 1, 1, 3, 13.59),
])
sketch12.setExpression("Constraints[4]", "Params.sketch12_radius")
pocket8 = body.newObject("PartDesign::Pocket", "Pocket007")
pocket8.Profile = sketch12
pocket8.Type = "UpToFirst"

# Sketch on XZ plane
sketch13 = body.newObject("Sketcher::SketchObject", "Sketch012")
sketch13.AttachmentSupport = (doc.getObject("XZ_Plane"), [""])
sketch13.MapMode = "FlatFace"
sketch13.AttachmentOffset = App.Placement(App.Vector(0, 0, -32), App.Rotation())
sketch13.addGeometry([
    Part.LineSegment(App.Vector(2, -7, 0), App.Vector(2, -1, 0)),
    Part.LineSegment(App.Vector(2, -1, 0), App.Vector(12, -1, 0)),
    Part.LineSegment(App.Vector(12, -1, 0), App.Vector(12, -7, 0)),
    Part.LineSegment(App.Vector(12, -7, 0), App.Vector(2, -7, 0)),
], False)
sketch13.addConstraint([
    Sketcher.Constraint("Coincident", 0, 2, 1, 1),
    Sketcher.Constraint("Coincident", 1, 2, 2, 1),
    Sketcher.Constraint("Coincident", 2, 2, 3, 1),
    Sketcher.Constraint("Coincident", 3, 2, 0, 1),
    Sketcher.Constraint("Vertical", 0),
    Sketcher.Constraint("Horizontal", 1),
    Sketcher.Constraint("Vertical", 2),
    Sketcher.Constraint("Horizontal", 3),
    Sketcher.Constraint("DistanceX", 1, 1, 1, 2, 10.0),
    Sketcher.Constraint("DistanceY", 0, 1, 0, 2, 6.0),
    Sketcher.Constraint("DistanceX", -1, 1, 0, 2, 2.0),
    Sketcher.Constraint("DistanceY", 0, 2, -1, 1, 1.0),
])
sketch13.setExpression("Constraints[8]", "Params.sketch13_width")
sketch13.setExpression("Constraints[9]", "Params.sketch13_height")
pocket9 = body.newObject("PartDesign::Pocket", "Pocket008")
pocket9.Profile = sketch13
pocket9.Type = "UpToFirst"
pocket9.Reversed = True

# Sketch on XY plane
sketch14 = body.newObject("Sketcher::SketchObject", "Sketch013")
sketch14.AttachmentSupport = (doc.getObject("XY_Plane"), [""])
sketch14.MapMode = "FlatFace"
sketch14.AttachmentOffset = App.Placement(App.Vector(0, 0, 23), App.Rotation())
sketch14.addGeometry([
    Part.LineSegment(App.Vector(10.4, -18.2, 0), App.Vector(10.4, -24.9, 0)),
    Part.LineSegment(App.Vector(10.4, -24.9, 0), App.Vector(12, -24.9, 0)),
    Part.LineSegment(App.Vector(12, -24.9, 0), App.Vector(12, -18.2, 0)),
    Part.LineSegment(App.Vector(12, -18.2, 0), App.Vector(10.4, -18.2, 0)),
], False)
sketch14.addConstraint([
    Sketcher.Constraint("Coincident", 0, 2, 1, 1),
    Sketcher.Constraint("Coincident", 1, 2, 2, 1),
    Sketcher.Constraint("Coincident", 2, 2, 3, 1),
    Sketcher.Constraint("Coincident", 3, 2, 0, 1),
    Sketcher.Constraint("Vertical", 0),
    Sketcher.Constraint("Horizontal", 1),
    Sketcher.Constraint("Vertical", 2),
    Sketcher.Constraint("Horizontal", 3),
    Sketcher.Constraint("DistanceX", 1, 1, 1, 2, 1.6),
    Sketcher.Constraint("DistanceY", 0, 2, 0, 1, 6.7),
    Sketcher.Constraint("DistanceX", -1, 1, 1, 2, 12.0),
    Sketcher.Constraint("DistanceY", 0, 2, -1, 1, 24.9),
])
sketch14.setExpression("Constraints[8]", "Params.sketch14_width")
sketch14.setExpression("Constraints[9]", "Params.sketch14_height")
pocket10 = body.newObject("PartDesign::Pocket", "Pocket009")
pocket10.Profile = sketch14
pocket10.Type = "UpToFirst"

doc.recompute()
